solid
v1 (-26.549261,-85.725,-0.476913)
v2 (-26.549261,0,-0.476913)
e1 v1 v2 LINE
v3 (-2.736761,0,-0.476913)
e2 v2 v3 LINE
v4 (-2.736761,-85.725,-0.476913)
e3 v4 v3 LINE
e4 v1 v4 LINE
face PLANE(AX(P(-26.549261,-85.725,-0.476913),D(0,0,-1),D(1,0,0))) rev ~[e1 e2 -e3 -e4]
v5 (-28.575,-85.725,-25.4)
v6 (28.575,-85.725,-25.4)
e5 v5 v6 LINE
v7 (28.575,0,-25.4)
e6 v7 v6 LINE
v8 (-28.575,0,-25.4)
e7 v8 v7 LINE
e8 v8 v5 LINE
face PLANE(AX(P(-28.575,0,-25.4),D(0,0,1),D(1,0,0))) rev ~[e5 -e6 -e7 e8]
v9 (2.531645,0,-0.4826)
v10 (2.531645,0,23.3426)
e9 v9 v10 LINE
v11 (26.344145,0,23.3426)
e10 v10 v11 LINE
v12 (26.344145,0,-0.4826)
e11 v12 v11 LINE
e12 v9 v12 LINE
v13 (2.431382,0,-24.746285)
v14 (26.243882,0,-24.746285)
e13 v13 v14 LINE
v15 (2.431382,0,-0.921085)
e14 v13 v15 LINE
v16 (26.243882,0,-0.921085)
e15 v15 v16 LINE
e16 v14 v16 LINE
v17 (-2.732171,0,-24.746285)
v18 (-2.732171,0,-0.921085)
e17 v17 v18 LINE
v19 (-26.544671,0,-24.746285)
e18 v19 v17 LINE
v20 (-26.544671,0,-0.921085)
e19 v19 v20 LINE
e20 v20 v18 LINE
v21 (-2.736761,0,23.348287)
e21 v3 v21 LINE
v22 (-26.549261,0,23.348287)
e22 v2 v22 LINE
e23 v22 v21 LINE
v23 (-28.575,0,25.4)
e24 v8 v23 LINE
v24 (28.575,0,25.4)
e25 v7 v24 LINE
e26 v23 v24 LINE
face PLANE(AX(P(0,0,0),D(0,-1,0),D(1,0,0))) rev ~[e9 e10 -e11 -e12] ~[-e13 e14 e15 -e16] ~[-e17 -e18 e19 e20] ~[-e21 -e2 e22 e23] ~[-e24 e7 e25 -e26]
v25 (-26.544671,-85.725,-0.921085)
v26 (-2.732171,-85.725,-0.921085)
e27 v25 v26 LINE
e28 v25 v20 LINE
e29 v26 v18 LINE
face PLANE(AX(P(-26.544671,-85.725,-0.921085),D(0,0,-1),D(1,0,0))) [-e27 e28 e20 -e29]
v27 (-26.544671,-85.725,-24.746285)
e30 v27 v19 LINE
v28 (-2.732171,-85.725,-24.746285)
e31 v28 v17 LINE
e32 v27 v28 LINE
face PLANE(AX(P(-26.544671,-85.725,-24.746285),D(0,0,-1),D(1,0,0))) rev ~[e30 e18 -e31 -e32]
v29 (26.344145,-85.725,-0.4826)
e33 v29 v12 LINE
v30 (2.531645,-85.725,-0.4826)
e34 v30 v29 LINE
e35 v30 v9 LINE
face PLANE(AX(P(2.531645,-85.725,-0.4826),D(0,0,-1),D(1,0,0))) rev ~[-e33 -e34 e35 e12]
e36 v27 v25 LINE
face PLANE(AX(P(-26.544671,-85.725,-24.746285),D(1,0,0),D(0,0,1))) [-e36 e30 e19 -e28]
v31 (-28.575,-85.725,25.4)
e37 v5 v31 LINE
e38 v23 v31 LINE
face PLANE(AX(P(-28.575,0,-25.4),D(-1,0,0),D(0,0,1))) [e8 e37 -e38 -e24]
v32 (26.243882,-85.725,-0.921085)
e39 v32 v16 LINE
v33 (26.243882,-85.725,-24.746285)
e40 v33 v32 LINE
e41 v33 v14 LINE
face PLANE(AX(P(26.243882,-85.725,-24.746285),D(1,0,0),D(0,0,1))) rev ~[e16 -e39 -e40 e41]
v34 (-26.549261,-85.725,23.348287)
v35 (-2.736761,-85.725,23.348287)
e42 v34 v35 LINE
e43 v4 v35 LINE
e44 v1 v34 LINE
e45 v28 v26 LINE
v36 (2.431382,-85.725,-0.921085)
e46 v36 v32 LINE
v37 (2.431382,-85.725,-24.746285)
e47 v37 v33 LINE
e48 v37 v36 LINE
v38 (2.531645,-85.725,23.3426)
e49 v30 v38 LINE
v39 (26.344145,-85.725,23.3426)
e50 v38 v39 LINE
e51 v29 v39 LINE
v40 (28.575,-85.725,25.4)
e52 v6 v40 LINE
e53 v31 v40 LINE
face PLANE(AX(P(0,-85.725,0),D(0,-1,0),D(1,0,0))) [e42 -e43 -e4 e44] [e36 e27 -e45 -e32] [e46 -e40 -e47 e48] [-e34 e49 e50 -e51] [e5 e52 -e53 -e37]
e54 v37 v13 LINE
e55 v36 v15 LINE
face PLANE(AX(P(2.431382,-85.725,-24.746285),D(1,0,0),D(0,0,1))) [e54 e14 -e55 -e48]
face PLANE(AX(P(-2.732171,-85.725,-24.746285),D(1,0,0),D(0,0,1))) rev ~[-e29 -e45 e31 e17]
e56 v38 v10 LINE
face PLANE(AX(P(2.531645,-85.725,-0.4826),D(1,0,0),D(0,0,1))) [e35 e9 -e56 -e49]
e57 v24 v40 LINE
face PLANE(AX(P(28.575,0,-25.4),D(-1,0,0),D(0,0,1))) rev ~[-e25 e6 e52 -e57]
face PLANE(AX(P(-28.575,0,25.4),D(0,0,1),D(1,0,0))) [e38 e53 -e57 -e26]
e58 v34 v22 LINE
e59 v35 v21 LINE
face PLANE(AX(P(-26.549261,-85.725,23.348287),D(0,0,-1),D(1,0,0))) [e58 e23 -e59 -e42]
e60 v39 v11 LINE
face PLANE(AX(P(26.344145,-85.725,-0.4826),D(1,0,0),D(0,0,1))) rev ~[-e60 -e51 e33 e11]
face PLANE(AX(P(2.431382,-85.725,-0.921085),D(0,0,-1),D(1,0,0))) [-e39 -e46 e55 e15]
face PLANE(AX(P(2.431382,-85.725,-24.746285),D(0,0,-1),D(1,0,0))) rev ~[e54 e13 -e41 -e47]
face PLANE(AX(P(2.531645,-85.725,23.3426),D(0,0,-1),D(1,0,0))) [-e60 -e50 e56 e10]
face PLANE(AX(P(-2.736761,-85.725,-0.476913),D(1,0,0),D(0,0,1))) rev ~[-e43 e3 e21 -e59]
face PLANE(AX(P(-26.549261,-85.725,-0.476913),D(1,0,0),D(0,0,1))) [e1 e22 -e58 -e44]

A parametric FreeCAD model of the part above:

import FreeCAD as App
import Part
import Sketcher
Q = App.Units.Quantity


def add_polygon(sketch, points):
    """Adds a closed chain of lines whose ends are joined by coincident constraints."""
    first, n = sketch.GeometryCount, len(points)
    for a, b in zip(points, points[1:] + points[:1]):
        sketch.addGeometry(Part.LineSegment(App.Vector(*a, 0), App.Vector(*b, 0)), False)
    for i in range(n):
        sketch.addConstraint(Sketcher.Constraint("Coincident", first + i, 2, first + (i + 1) % n, 1))

doc = App.newDocument("Part")
body = doc.addObject("PartDesign::Body", "Body")

# Sketch on XZ plane
sketch1 = body.newObject("Sketcher::SketchObject", "Sketch")
sketch1.AttachmentSupport = (doc.getObject("XZ_Plane"), [""])
sketch1.MapMode = "FlatFace"
add_polygon(sketch1, [(-29, 25), (-29, -25), (29, -25), (29, 25)])  # lines 0-3
sketch1.addConstraint([
    Sketcher.Constraint("Vertical", 0),
    Sketcher.Constraint("Horizontal", 1),
    Sketcher.Constraint("Vertical", 2),
    Sketcher.Constraint("Horizontal", 3),
    Sketcher.Constraint("Symmetric", 0, 2, 2, 2, -1, 1),
    Sketcher.Constraint("DistanceY", 0, 2, 0, 1, Q("2 in")),
    Sketcher.Constraint("DistanceX", 1, 1, 1, 2, Q("2.25 in")),
])
pad1 = body.newObject("PartDesign::Pad", "Pad")
pad1.Profile = sketch1
pad1.Length = Q("3.375 in")

# Sketch on XZ plane
sketch2 = body.newObject("Sketcher::SketchObject", "Sketch001")
sketch2.AttachmentSupport = (doc.getObject("XZ_Plane"), [""])
sketch2.MapMode = "FlatFace"
sketch2.AttachmentOffset = App.Placement(App.Vector(0, 0, 3.375 * 25.4), App.Rotation())
add_polygon(sketch2, [(-27, 23), (-27, 0), (-3, 0), (-3, 23)])  # lines 0-3
sketch2.addConstraint([
    Sketcher.Constraint("Vertical", 0),
    Sketcher.Constraint("Horizontal", 1),
    Sketcher.Constraint("Vertical", 2),
    Sketcher.Constraint("Horizontal", 3),
    Sketcher.Constraint("DistanceX", 1, 1, 1, 2, Q("0.9375 in")),
    Sketcher.Constraint("DistanceY", 0, 2, 0, 1, Q("0.938 in")),
    Sketcher.Constraint("DistanceX", 0, 2, -1, 1, Q("26.549261 mm")),
    Sketcher.Constraint("DistanceY", 0, 2, -1, 1, Q("0.476913 mm")),
])
pocket1 = body.newObject("PartDesign::Pocket", "Pocket")
pocket1.Profile = sketch2
pocket1.Type = "ThroughAll"

# Sketch on XZ plane
sketch3 = body.newObject("Sketcher::SketchObject", "Sketch002")
sketch3.AttachmentSupport = (doc.getObject("XZ_Plane"), [""])
sketch3.MapMode = "FlatFace"
sketch3.AttachmentOffset = App.Placement(App.Vector(0, 0, 3.375 * 25.4), App.Rotation())
add_polygon(sketch3, [(3, 23), (3, 0), (26, 0), (26, 23)])  # lines 0-3
sketch3.addConstraint([
    Sketcher.Constraint("Vertical", 0),
    Sketcher.Constraint("Horizontal", 1),
    Sketcher.Constraint("Vertical", 2),
    Sketcher.Constraint("Horizontal", 3),
    Sketcher.Constraint("DistanceX", 1, 1, 1, 2, Q("0.9375 in")),
    Sketcher.Constraint("DistanceY", 0, 2, 0, 1, Q("0.938 in")),
    Sketcher.Constraint("DistanceY", 0, 2, -1, 1, Q("0.019 in")),
    Sketcher.Constraint("DistanceX", -1, 1, 0, 2, Q("2.531645 mm")),
])
pocket2 = body.newObject("PartDesign::Pocket", "Pocket001")
pocket2.Profile = sketch3
pocket2.Type = "ThroughAll"

# Sketch on XZ plane
sketch4 = body.newObject("Sketcher::SketchObject", "Sketch003")
sketch4.AttachmentSupport = (doc.getObject("XZ_Plane"), [""])
sketch4.MapMode = "FlatFace"
sketch4.AttachmentOffset = App.Placement(App.Vector(0, 0, 3.375 * 25.4), App.Rotation())
add_polygon(sketch4, [(-27, -1), (-27, -25), (-3, -25), (-3, -1)])  # lines 0-3
sketch4.addConstraint([
    Sketcher.Constraint("Vertical", 0),
    Sketcher.Constraint("Horizontal", 1),
    Sketcher.Constraint("Vertical", 2),
    Sketcher.Constraint("Horizontal", 3),
    Sketcher.Constraint("DistanceX", 1, 1, 1, 2, Q("0.9375 in")),
    Sketcher.Constraint("DistanceY", 0, 2, 0, 1, Q("0.938 in")),
    Sketcher.Constraint("DistanceX", 0, 2, -1, 1, Q("26.544671 mm")),
    Sketcher.Constraint("DistanceY", 0, 2, -1, 1, Q("24.746285 mm")),
])
pocket3 = body.newObject("PartDesign::Pocket", "Pocket002")
pocket3.Profile = sketch4
pocket3.Type = "ThroughAll"

# Sketch on XZ plane
sketch5 = body.newObject("Sketcher::SketchObject", "Sketch004")
sketch5.AttachmentSupport = (doc.getObject("XZ_Plane"), [""])
sketch5.MapMode = "FlatFace"
sketch5.AttachmentOffset = App.Placement(App.Vector(0, 0, 3.375 * 25.4), App.Rotation())
add_polygon(sketch5, [(2, -1), (2, -25), (26, -25), (26, -1)])  # lines 0-3
sketch5.addConstraint([
    Sketcher.Constraint("Vertical", 0),
    Sketcher.Constraint("Horizontal", 1),
    Sketcher.Constraint("Vertical", 2),
    Sketcher.Constraint("Horizontal", 3),
    Sketcher.Constraint("DistanceX", 1, 1, 1, 2, Q("0.9375 in")),
    Sketcher.Constraint("DistanceY", 0, 2, 0, 1, Q("0.938 in")),
    Sketcher.Constraint("DistanceX", -1, 1, 1, 2, Q("26.243882 mm")),
    Sketcher.Constraint("DistanceY", 0, 2, -1, 1, Q("24.746285 mm")),
])
pocket4 = body.newObject("PartDesign::Pocket", "Pocket003")
pocket4.Profile = sketch5
pocket4.Type = "ThroughAll"

doc.recompute()
